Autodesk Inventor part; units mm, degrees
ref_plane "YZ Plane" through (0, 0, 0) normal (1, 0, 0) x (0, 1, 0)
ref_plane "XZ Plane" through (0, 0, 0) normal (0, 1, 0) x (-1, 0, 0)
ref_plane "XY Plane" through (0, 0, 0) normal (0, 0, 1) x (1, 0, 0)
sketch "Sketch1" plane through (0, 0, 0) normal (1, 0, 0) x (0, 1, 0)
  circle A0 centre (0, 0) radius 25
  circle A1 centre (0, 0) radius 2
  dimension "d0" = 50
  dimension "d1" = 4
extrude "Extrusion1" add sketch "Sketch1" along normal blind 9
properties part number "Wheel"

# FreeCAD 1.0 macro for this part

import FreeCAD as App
import Part
import Sketcher
Q = App.Units.Quantity

doc = App.newDocument("Part")
body = doc.addObject("PartDesign::Body", "Body")

# Sketch on YZ plane
sketch1 = body.newObject("Sketcher::SketchObject", "Sketch")
sketch1.AttachmentSupport = (doc.getObject("YZ_Plane"), [""])
sketch1.MapMode = "FlatFace"
sketch1.addGeometry([
    Part.Circle(App.Vector(0, 0, 0), App.Vector(0, 0, 1), 25),
    Part.Circle(App.Vector(0, 0, 0), App.Vector(0, 0, 1), 2),
], False)
sketch1.addConstraint([
    Sketcher.Constraint("Coincident", 0, 3, -1, 1),
    Sketcher.Constraint("Coincident", 1, 3, -1, 1),
    Sketcher.Constraint("Diameter", 0, Q("50 mm")),
    Sketcher.Constraint("Diameter", 1, Q("4 mm")),
])
pad1 = body.newObject("PartDesign::Pad", "Pad")
pad1.Profile = sketch1
pad1.Length = 9

doc.recompute()
